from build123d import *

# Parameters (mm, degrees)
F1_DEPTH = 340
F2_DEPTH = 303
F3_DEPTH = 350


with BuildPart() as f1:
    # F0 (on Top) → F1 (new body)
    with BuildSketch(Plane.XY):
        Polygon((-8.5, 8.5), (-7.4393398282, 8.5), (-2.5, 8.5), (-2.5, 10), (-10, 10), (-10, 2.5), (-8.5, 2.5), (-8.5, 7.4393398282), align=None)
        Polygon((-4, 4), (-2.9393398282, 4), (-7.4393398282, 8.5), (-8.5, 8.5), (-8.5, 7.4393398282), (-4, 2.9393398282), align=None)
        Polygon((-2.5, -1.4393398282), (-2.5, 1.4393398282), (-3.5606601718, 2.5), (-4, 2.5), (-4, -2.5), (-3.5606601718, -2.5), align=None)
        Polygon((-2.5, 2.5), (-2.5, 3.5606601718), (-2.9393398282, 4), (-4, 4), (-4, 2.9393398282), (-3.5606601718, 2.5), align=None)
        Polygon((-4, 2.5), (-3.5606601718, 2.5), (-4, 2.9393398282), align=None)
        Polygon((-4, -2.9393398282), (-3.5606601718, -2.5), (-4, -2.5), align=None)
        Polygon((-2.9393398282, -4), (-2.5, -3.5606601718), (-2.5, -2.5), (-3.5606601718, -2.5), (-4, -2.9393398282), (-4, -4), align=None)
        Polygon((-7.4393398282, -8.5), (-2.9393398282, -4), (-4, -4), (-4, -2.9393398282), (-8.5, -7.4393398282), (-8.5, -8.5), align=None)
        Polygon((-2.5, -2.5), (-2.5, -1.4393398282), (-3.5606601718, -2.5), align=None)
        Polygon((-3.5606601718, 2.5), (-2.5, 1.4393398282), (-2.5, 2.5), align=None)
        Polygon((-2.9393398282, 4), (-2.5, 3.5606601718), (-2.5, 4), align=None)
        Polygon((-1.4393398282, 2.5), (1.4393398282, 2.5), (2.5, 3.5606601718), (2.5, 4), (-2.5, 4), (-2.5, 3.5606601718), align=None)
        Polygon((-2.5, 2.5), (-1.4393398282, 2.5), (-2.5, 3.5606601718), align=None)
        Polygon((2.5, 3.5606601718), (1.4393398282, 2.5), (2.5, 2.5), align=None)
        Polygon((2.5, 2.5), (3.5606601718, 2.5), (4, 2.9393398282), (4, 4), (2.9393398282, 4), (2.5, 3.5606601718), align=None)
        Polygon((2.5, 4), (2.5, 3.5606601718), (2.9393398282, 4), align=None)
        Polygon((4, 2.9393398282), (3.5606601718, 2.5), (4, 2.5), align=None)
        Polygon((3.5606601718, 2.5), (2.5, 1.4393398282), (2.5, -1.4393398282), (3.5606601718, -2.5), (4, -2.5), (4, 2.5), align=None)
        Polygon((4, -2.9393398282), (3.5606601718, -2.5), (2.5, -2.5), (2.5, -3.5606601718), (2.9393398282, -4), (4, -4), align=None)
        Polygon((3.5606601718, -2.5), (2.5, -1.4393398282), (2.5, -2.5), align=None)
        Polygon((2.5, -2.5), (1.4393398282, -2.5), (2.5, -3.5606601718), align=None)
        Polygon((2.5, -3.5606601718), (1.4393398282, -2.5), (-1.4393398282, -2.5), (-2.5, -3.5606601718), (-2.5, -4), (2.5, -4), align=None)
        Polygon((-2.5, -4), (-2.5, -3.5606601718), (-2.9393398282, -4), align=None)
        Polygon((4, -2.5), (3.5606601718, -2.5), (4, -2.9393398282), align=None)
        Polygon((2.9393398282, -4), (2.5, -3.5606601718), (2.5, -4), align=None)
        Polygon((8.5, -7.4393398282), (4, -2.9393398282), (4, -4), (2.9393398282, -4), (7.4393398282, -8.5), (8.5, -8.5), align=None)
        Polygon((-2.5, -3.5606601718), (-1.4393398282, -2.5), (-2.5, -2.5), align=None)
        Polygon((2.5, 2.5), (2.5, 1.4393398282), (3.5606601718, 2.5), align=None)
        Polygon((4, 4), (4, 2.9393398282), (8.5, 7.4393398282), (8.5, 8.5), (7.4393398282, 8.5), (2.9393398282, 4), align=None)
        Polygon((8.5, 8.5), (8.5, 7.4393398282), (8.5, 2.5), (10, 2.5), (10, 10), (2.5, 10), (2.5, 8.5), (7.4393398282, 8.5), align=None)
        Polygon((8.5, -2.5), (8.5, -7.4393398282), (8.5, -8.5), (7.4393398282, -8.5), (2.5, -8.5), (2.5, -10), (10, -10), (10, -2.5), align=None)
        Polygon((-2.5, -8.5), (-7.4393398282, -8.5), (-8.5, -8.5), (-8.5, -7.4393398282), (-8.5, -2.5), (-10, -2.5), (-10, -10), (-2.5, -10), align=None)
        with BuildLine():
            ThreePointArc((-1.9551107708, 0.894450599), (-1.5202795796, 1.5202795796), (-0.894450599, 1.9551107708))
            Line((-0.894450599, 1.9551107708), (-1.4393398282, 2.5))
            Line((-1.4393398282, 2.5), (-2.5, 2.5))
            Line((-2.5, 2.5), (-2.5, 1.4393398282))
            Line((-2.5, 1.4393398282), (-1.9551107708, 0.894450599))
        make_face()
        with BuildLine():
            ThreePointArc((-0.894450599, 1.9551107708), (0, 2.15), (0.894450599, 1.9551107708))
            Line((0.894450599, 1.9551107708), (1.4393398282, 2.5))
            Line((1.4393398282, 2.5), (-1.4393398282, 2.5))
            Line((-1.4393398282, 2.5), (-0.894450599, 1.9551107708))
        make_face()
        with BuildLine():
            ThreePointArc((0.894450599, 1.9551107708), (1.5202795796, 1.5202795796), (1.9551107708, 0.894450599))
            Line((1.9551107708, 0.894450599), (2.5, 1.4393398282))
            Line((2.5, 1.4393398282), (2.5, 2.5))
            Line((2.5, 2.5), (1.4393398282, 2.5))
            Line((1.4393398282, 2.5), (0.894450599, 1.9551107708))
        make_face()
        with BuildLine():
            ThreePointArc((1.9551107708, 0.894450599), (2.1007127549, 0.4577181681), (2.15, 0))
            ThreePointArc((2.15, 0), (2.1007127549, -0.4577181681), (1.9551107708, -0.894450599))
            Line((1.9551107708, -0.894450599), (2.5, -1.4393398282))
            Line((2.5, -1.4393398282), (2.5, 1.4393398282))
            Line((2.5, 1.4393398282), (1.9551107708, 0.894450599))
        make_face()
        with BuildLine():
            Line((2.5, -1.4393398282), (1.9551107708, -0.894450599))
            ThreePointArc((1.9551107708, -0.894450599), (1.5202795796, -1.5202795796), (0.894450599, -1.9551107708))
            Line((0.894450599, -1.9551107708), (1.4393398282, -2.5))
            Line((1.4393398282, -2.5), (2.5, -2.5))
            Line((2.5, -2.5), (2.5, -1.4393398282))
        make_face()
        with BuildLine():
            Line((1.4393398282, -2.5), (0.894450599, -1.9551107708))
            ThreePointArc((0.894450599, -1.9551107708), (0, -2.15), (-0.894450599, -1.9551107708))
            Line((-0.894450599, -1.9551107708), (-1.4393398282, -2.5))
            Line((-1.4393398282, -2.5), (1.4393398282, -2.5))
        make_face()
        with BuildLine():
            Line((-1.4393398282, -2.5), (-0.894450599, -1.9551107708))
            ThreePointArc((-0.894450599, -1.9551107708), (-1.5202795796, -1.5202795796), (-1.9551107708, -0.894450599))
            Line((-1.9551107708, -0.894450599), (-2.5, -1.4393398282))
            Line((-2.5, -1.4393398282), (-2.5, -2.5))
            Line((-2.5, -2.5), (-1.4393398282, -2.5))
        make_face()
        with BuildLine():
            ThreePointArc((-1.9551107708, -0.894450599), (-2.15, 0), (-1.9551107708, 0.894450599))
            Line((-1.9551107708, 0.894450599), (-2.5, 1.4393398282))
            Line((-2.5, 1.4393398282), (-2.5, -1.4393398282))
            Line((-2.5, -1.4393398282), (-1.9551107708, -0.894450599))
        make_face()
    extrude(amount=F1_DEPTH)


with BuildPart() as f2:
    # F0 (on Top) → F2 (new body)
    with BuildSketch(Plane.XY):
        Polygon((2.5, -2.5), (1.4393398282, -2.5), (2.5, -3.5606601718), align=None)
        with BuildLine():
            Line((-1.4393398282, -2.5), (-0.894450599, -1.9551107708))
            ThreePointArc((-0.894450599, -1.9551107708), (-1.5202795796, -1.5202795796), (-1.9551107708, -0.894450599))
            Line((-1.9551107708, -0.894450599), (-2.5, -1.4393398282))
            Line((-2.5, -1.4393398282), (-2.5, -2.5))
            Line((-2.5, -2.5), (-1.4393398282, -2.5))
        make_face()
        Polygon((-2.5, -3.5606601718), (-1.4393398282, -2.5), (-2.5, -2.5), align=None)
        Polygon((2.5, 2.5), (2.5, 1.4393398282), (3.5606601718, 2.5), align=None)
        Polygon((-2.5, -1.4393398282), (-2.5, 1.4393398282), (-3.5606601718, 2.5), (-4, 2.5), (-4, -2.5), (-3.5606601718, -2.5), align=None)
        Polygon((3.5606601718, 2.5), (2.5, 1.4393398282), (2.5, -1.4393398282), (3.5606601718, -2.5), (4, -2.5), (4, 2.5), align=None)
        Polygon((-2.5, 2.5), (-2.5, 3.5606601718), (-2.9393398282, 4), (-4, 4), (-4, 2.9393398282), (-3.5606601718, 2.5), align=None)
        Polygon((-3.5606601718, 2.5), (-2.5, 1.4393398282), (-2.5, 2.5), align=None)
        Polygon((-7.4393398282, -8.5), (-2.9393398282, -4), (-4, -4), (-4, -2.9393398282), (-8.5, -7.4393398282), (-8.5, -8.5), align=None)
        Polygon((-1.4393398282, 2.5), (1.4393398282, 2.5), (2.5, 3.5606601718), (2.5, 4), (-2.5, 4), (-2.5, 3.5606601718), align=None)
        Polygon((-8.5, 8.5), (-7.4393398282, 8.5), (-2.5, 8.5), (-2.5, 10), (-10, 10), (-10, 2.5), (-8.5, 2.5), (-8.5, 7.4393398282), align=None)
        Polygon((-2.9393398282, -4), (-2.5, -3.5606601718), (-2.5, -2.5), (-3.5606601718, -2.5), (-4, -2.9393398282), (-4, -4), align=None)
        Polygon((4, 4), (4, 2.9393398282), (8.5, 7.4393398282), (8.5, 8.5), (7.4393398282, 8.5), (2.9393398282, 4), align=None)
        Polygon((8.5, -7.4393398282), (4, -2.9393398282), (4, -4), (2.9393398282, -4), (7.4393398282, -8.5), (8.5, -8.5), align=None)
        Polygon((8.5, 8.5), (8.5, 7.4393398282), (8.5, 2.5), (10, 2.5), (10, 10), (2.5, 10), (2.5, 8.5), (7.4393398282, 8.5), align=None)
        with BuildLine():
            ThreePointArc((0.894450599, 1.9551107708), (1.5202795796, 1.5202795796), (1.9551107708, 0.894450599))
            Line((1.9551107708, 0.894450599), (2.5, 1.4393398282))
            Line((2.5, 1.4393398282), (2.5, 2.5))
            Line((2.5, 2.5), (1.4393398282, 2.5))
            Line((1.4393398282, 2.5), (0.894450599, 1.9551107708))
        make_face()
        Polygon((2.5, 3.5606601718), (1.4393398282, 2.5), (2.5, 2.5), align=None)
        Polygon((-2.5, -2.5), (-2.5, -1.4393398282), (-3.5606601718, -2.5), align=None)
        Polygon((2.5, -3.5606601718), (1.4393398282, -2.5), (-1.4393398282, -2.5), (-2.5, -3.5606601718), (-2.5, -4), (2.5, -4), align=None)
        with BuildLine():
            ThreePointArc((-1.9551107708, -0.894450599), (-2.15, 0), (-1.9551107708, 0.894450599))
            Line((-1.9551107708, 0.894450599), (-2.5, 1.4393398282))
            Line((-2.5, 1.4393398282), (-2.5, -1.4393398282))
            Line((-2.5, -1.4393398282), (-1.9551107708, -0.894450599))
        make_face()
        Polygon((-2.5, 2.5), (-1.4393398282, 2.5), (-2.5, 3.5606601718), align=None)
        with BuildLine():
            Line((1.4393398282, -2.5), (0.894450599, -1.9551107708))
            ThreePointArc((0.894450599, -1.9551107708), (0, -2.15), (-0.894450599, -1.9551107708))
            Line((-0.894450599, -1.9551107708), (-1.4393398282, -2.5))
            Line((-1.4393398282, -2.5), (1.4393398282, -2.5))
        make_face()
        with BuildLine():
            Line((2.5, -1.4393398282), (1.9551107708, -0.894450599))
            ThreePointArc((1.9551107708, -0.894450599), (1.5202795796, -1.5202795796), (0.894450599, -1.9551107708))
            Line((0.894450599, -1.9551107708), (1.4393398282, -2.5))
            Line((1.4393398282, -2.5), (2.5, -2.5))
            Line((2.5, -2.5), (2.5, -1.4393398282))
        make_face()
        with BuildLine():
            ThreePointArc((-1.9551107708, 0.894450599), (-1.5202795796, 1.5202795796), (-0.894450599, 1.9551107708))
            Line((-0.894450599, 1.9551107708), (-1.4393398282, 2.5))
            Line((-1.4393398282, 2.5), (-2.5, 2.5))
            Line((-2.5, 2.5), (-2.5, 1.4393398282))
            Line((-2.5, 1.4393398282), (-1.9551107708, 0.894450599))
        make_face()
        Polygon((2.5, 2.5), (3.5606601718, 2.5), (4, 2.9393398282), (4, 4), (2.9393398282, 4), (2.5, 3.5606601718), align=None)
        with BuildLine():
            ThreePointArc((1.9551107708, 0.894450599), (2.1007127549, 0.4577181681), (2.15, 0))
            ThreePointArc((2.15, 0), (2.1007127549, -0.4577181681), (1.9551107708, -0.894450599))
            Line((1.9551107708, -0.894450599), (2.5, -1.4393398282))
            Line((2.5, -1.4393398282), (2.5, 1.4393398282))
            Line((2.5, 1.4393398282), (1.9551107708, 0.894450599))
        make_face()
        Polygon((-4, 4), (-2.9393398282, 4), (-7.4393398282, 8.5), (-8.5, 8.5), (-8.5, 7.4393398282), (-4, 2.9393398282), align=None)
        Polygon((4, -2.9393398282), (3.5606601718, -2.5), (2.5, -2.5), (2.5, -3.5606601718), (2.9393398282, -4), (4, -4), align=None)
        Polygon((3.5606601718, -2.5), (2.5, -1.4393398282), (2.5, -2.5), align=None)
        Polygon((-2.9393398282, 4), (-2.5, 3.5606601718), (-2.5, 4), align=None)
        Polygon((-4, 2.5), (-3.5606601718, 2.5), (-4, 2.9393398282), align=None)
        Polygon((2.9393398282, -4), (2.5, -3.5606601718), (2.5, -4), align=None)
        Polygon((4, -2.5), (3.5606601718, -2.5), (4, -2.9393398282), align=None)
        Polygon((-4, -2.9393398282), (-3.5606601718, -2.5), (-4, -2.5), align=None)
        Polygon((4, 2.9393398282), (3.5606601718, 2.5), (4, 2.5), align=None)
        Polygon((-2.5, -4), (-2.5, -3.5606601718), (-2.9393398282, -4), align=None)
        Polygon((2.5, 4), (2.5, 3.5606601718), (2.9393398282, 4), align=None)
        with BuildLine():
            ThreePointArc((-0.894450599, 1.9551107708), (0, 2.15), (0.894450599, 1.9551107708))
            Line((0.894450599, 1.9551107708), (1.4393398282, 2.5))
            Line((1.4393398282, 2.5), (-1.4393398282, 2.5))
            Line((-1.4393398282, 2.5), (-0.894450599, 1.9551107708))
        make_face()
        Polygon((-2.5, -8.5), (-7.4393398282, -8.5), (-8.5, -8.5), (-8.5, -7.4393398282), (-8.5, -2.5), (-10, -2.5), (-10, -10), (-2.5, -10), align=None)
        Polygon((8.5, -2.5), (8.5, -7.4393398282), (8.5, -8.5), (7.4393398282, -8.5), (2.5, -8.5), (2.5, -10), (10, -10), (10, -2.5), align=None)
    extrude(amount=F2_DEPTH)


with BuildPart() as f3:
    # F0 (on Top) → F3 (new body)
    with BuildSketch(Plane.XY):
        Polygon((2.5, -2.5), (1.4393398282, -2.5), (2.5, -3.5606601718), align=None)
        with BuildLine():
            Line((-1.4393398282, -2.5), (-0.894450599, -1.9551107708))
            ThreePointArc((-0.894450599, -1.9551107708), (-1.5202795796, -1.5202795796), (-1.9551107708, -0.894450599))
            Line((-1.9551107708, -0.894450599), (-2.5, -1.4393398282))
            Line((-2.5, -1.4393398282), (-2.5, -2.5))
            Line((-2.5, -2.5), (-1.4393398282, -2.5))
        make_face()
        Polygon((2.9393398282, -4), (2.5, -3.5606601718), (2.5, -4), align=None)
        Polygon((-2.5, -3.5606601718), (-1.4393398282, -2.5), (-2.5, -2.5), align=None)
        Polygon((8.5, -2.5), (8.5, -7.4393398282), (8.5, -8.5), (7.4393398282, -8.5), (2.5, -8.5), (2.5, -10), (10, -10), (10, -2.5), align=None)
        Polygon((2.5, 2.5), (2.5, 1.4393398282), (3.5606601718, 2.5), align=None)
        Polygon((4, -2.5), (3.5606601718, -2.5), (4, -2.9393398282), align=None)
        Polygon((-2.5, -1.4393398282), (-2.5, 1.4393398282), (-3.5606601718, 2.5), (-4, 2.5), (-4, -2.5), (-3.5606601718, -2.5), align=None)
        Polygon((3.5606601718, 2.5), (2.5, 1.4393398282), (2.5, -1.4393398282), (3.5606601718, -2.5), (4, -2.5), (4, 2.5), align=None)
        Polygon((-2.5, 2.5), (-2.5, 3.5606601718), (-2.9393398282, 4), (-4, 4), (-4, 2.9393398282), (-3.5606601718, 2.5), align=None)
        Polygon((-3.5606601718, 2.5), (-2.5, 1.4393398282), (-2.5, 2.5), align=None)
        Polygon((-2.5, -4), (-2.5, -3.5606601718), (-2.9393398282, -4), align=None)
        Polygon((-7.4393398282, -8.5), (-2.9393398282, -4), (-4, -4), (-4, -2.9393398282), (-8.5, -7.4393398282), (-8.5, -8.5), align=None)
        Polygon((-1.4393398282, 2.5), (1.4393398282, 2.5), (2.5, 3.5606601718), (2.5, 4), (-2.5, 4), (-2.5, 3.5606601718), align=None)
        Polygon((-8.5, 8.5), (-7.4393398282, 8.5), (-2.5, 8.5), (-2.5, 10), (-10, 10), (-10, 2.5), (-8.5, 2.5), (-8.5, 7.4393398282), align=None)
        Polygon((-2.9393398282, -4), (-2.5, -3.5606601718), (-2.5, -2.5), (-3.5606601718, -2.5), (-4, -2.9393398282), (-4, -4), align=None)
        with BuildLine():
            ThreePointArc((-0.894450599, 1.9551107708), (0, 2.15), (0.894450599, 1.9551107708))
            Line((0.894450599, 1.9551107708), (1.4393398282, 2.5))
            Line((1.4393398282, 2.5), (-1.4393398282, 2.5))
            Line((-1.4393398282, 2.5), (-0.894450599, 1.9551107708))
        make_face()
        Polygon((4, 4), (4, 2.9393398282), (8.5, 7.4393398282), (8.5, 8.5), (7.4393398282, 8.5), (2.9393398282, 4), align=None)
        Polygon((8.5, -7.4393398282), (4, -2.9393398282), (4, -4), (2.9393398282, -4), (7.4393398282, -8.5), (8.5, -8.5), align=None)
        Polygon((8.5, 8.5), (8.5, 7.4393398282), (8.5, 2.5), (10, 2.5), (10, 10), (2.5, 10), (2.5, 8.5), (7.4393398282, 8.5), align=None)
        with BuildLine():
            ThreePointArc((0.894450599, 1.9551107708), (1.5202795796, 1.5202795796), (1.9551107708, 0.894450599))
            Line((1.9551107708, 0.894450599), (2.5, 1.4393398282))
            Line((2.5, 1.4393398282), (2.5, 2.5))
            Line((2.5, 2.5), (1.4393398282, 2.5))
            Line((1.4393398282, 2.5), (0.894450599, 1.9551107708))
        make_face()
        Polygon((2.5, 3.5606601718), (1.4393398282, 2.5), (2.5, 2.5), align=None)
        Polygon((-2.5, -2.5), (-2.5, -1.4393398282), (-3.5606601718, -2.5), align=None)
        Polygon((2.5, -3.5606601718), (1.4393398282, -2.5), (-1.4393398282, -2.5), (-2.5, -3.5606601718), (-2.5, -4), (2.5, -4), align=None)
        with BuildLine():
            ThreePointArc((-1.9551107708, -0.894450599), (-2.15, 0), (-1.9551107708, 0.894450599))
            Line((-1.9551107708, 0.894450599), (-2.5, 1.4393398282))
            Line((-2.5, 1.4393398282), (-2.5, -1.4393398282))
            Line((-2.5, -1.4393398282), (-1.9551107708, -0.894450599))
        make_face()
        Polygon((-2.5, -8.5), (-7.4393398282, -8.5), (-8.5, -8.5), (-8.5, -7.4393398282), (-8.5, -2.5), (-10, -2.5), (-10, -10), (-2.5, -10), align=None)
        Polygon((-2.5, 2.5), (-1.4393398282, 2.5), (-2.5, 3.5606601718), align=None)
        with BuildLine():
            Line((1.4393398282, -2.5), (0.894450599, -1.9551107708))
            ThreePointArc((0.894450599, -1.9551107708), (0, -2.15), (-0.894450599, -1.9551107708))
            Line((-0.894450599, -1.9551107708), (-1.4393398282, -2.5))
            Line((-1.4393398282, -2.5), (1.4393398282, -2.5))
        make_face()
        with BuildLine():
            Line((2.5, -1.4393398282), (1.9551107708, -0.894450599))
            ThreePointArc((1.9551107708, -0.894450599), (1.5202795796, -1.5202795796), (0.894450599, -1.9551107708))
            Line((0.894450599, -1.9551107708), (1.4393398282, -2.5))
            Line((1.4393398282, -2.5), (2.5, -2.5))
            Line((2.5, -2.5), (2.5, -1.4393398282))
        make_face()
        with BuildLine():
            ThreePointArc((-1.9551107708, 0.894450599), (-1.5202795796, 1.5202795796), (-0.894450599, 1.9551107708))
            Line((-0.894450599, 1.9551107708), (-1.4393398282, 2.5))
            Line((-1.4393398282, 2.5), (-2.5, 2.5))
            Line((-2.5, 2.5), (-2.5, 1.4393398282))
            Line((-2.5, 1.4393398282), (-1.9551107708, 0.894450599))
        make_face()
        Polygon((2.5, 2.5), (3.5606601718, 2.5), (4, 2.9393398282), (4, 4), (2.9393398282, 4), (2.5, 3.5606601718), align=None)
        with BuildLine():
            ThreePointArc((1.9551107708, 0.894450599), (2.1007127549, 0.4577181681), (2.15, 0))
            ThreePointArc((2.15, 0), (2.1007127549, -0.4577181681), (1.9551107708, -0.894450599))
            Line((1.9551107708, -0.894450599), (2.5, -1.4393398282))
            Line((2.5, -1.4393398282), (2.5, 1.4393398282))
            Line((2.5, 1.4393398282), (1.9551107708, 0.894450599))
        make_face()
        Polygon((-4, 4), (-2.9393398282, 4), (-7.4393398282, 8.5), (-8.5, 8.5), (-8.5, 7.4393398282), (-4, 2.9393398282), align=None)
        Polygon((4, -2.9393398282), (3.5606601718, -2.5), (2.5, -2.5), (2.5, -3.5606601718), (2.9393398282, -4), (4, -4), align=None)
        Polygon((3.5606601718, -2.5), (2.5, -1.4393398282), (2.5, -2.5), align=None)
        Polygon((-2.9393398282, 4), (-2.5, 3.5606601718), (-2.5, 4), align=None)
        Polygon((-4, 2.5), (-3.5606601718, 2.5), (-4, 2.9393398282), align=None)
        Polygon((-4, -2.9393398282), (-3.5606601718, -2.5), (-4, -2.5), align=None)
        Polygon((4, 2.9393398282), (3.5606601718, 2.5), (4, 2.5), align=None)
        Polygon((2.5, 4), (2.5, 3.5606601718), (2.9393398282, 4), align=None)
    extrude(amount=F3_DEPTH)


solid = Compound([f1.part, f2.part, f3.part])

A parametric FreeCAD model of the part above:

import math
import FreeCAD as App
import Part
import Sketcher
from FreeCAD import Vector
Q = App.Units.Quantity


def add_polygon(sketch, points):
    """Adds a closed chain of lines whose ends are joined by coincident constraints."""
    first, n = sketch.GeometryCount, len(points)
    for a, b in zip(points, points[1:] + points[:1]):
        sketch.addGeometry(Part.LineSegment(App.Vector(*a, 0), App.Vector(*b, 0)), False)
    for i in range(n):
        sketch.addConstraint(Sketcher.Constraint("Coincident", first + i, 2, first + (i + 1) % n, 1))

doc = App.newDocument("Part")
body = doc.addObject("PartDesign::Body", "Body")

# Sketch on XY plane
sketch1 = body.newObject("Sketcher::SketchObject", "Sketch")
sketch1.AttachmentSupport = (doc.getObject("XY_Plane"), [""])
sketch1.MapMode = "FlatFace"
add_polygon(sketch1, [(-7.4, -8.5), (-2.9, -4), (2.9, -4), (7.4, -8.5), (2.5, -8.5), (2.5, -10), (10, -10), (10, -2.5), (8.5, -2.5), (8.5, -7.4), (4, -2.9), (4, 2.9), (8.5, 7.4), (8.5, 2.5), (10, 2.5), (10, 10), (2.5, 10), (2.5, 8.5), (7.4, 8.5), (2.9, 4), (-2.9, 4), (-7.4, 8.5), (-2.5, 8.5), (-2.5, 10), (-10, 10), (-10, 2.5), (-8.5, 2.5), (-8.5, 7.4), (-4, 2.9), (-4, -2.9), (-8.5, -7.4), (-8.5, -2.5), (-10, -2.5), (-10, -10), (-2.5, -10), (-2.5, -8.5)])  # lines 0-35
sketch1.addGeometry(Part.ArcOfCircle(Part.Circle(Vector(0, 0, 0), Vector(0, 0, 1), 2.1), math.radians(115), math.radians(155)), False)  # 36
sketch1.addGeometry(Part.ArcOfCircle(Part.Circle(Vector(0, 0, 0), Vector(0, 0, 1), 2.1), math.radians(65), math.radians(115)), False)  # 37
sketch1.addGeometry(Part.ArcOfCircle(Part.Circle(Vector(0, 0, 0), Vector(0, 0, 1), 2.1), math.radians(25), math.radians(65)), False)  # 38
sketch1.addGeometry(Part.ArcOfCircle(Part.Circle(Vector(0, 0, 0), Vector(0, 0, 1), 2.2), math.radians(0), math.radians(25)), False)  # 39
sketch1.addGeometry(Part.ArcOfCircle(Part.Circle(Vector(0, 0, 0), Vector(0, 0, 1), 2.2), math.radians(-25), math.radians(0)), False)  # 40
sketch1.addGeometry(Part.ArcOfCircle(Part.Circle(Vector(0, 0, 0), Vector(0, 0, 1), 2.1), math.radians(-65), math.radians(-25)), False)  # 41
sketch1.addGeometry(Part.ArcOfCircle(Part.Circle(Vector(0, 0, 0), Vector(0, 0, 1), 2.1), math.radians(-115), math.radians(-65)), False)  # 42
sketch1.addGeometry(Part.ArcOfCircle(Part.Circle(Vector(0, 0, 0), Vector(0, 0, 1), 2.1), math.radians(-155), math.radians(-115)), False)  # 43
sketch1.addGeometry(Part.ArcOfCircle(Part.Circle(Vector(0, 0, 0), Vector(0, 0, 1), 2.1), math.radians(155), math.radians(205)), False)  # 44
sketch1.addConstraint([
    Sketcher.Constraint("Tangent", 36, 1, 37, 2),
    Sketcher.Constraint("Tangent", 37, 1, 38, 2),
    Sketcher.Constraint("Tangent", 38, 1, 39, 2),
    Sketcher.Constraint("Tangent", 39, 1, 40, 2),
    Sketcher.Constraint("Tangent", 40, 1, 41, 2),
    Sketcher.Constraint("Tangent", 41, 1, 42, 2),
    Sketcher.Constraint("Tangent", 42, 1, 43, 2),
    Sketcher.Constraint("Tangent", 43, 1, 44, 2),
    Sketcher.Constraint("Tangent", 44, 1, 36, 2),
    Sketcher.Constraint("Horizontal", 1),
    Sketcher.Constraint("Horizontal", 3),
    Sketcher.Constraint("Vertical", 4),
    Sketcher.Constraint("Horizontal", 5),
    Sketcher.Constraint("Vertical", 6),
    Sketcher.Constraint("Horizontal", 7),
    Sketcher.Constraint("Vertical", 8),
    Sketcher.Constraint("Vertical", 10),
    Sketcher.Constraint("Vertical", 12),
    Sketcher.Constraint("Horizontal", 13),
    Sketcher.Constraint("Vertical", 14),
    Sketcher.Constraint("Horizontal", 15),
    Sketcher.Constraint("Vertical", 16),
    Sketcher.Constraint("Horizontal", 17),
    Sketcher.Constraint("Horizontal", 19),
    Sketcher.Constraint("Horizontal", 21),
    Sketcher.Constraint("Vertical", 22),
    Sketcher.Constraint("Horizontal", 23),
    Sketcher.Constraint("Vertical", 24),
    Sketcher.Constraint("Horizontal", 25),
    Sketcher.Constraint("Vertical", 26),
    Sketcher.Constraint("Vertical", 28),
    Sketcher.Constraint("Vertical", 30),
    Sketcher.Constraint("Horizontal", 31),
    Sketcher.Constraint("Vertical", 32),
    Sketcher.Constraint("Horizontal", 33),
    Sketcher.Constraint("Vertical", 34),
    Sketcher.Constraint("Horizontal", 35),
    Sketcher.Constraint("Coincident", 36, 3, -1, 1),
    Sketcher.Constraint("Coincident", 38, 3, -1, 1),
    Sketcher.Constraint("Coincident", 40, 3, -1, 1),
    Sketcher.Constraint("Coincident", 42, 3, -1, 1),
    Sketcher.Constraint("Symmetric", 0, 2, 18, 2, -1, 1),
    Sketcher.Constraint("Symmetric", 2, 2, 20, 2, -1, 1),
    Sketcher.Constraint("Symmetric", 4, 2, 22, 2, -1, 1),
    Sketcher.Constraint("Symmetric", 6, 2, 24, 2, -1, 1),
    Sketcher.Constraint("Symmetric", 8, 2, 26, 2, -1, 1),
    Sketcher.Constraint("Symmetric", 9, 2, 27, 2, -1, 1),
    Sketcher.Constraint("Symmetric", 11, 2, 29, 2, -1, 1),
    Sketcher.Constraint("Symmetric", 13, 2, 31, 2, -1, 1),
    Sketcher.Constraint("Symmetric", 15, 2, 33, 2, -1, 1),
    Sketcher.Constraint("Symmetric", 17, 2, 35, 2, -1, 1),
    Sketcher.Constraint("Symmetric", 17, 2, 20, 2, -2),
    Sketcher.Constraint("Symmetric", 15, 2, 22, 2, -2),
    Sketcher.Constraint("Symmetric", 13, 2, 24, 2, -2),
    Sketcher.Constraint("Symmetric", 11, 2, 26, 2, -2),
    Sketcher.Constraint("PointOnObject", 39, 1, -1),
    Sketcher.Constraint("Perpendicular", 0, 2),
    Sketcher.Constraint("Parallel", 2, 9),
    Sketcher.Constraint("Perpendicular", 9, 11),
    Sketcher.Constraint("Perpendicular", 18, 20),
    Sketcher.Constraint("Perpendicular", 27, 29),
    Sketcher.Constraint("Horizontal", 10, 2, 27, 2),
    Sketcher.Constraint("Horizontal", 36, 1, 37, 1),
    Sketcher.Constraint("Horizontal", 41, 1, 42, 1),
    Sketcher.Constraint("Horizontal", 40, 1, 43, 1),
    Sketcher.Constraint("Horizontal", 38, 1, 44, 1),
    Sketcher.Constraint("Vertical", 38, 1, 40, 1),
    Sketcher.Constraint("Vertical", 37, 1, 41, 1),
    Sketcher.Constraint("Equal", 31, 4),
    Sketcher.Constraint("Equal", 33, 6),
    Sketcher.Constraint("Equal", 35, 8),
    Sketcher.Constraint("Equal", 19, 10),
    Sketcher.Constraint("Equal", 2, 9),
    Sketcher.Constraint("Radius", 36, Q("2.15 mm")),
    Sketcher.Constraint("DistanceX", 5, 1, 5, 2, Q("7.5 mm")),
    Sketcher.Constraint("DistanceX", 7, 2, 7, 1, Q("1.5 mm")),
    Sketcher.Constraint("DistanceY", 0, 2, -1, 1, Q("4 mm")),
    Sketcher.Constraint("DistanceY", 4, 2, -1, 1, Q("10 mm")),
    Sketcher.Constraint("DistanceX", 1, 1, 1, 2, Q("5.87868 mm")),
    Sketcher.Constraint("DistanceX", 36, 1, 37, 1, Q("1.788901 mm")),
    Sketcher.Constraint("DistanceY", 40, 1, 38, 1, Q("1.788901 mm")),
])
pad1 = body.newObject("PartDesign::Pad", "Pad")
pad1.Profile = sketch1
pad1.Length = 340
body2 = doc.addObject("PartDesign::Body", "Body001")

# Sketch on XY plane
sketch2 = body2.newObject("Sketcher::SketchObject", "Sketch001")
sketch2.AttachmentSupport = (doc.getObject("XY_Plane001"), [""])
sketch2.MapMode = "FlatFace"
add_polygon(sketch2, [(8.5, -7.4), (4, -2.9), (4, 2.9), (8.5, 7.4), (8.5, 2.5), (10, 2.5), (10, 10), (2.5, 10), (2.5, 8.5), (7.4, 8.5), (2.9, 4), (-2.9, 4), (-7.4, 8.5), (-2.5, 8.5), (-2.5, 10), (-10, 10), (-10, 2.5), (-8.5, 2.5), (-8.5, 7.4), (-4, 2.9), (-4, -2.9), (-8.5, -7.4), (-8.5, -2.5), (-10, -2.5), (-10, -10), (-2.5, -10), (-2.5, -8.5), (-7.4, -8.5), (-2.9, -4), (2.9, -4), (7.4, -8.5), (2.5, -8.5), (2.5, -10), (10, -10), (10, -2.5), (8.5, -2.5)])  # lines 0-35
sketch2.addGeometry(Part.ArcOfCircle(Part.Circle(Vector(0, 0, 0), Vector(0, 0, 1), 2.1), math.radians(25), math.radians(65)), False)  # 36
sketch2.addGeometry(Part.ArcOfCircle(Part.Circle(Vector(0, 0, 0), Vector(0, 0, 1), 2.2), math.radians(0), math.radians(25)), False)  # 37
sketch2.addGeometry(Part.ArcOfCircle(Part.Circle(Vector(0, 0, 0), Vector(0, 0, 1), 2.2), math.radians(-25), math.radians(0)), False)  # 38
sketch2.addGeometry(Part.ArcOfCircle(Part.Circle(Vector(0, 0, 0), Vector(0, 0, 1), 2.1), math.radians(-65), math.radians(-25)), False)  # 39
sketch2.addGeometry(Part.ArcOfCircle(Part.Circle(Vector(0, 0, 0), Vector(0, 0, 1), 2.1), math.radians(-115), math.radians(-65)), False)  # 40
sketch2.addGeometry(Part.ArcOfCircle(Part.Circle(Vector(0, 0, 0), Vector(0, 0, 1), 2.1), math.radians(-155), math.radians(-115)), False)  # 41
sketch2.addGeometry(Part.ArcOfCircle(Part.Circle(Vector(0, 0, 0), Vector(0, 0, 1), 2.1), math.radians(155), math.radians(205)), False)  # 42
sketch2.addGeometry(Part.ArcOfCircle(Part.Circle(Vector(0, 0, 0), Vector(0, 0, 1), 2.1), math.radians(115), math.radians(155)), False)  # 43
sketch2.addGeometry(Part.ArcOfCircle(Part.Circle(Vector(0, 0, 0), Vector(0, 0, 1), 2.1), math.radians(65), math.radians(115)), False)  # 44
sketch2.addConstraint([
    Sketcher.Constraint("Tangent", 36, 1, 37, 2),
    Sketcher.Constraint("Tangent", 37, 1, 38, 2),
    Sketcher.Constraint("Tangent", 38, 1, 39, 2),
    Sketcher.Constraint("Tangent", 39, 1, 40, 2),
    Sketcher.Constraint("Tangent", 40, 1, 41, 2),
    Sketcher.Constraint("Tangent", 41, 1, 42, 2),
    Sketcher.Constraint("Tangent", 42, 1, 43, 2),
    Sketcher.Constraint("Tangent", 43, 1, 44, 2),
    Sketcher.Constraint("Tangent", 44, 1, 36, 2),
    Sketcher.Constraint("Vertical", 1),
    Sketcher.Constraint("Vertical", 3),
    Sketcher.Constraint("Horizontal", 4),
    Sketcher.Constraint("Vertical", 5),
    Sketcher.Constraint("Horizontal", 6),
    Sketcher.Constraint("Vertical", 7),
    Sketcher.Constraint("Horizontal", 8),
    Sketcher.Constraint("Horizontal", 10),
    Sketcher.Constraint("Horizontal", 12),
    Sketcher.Constraint("Vertical", 13),
    Sketcher.Constraint("Horizontal", 14),
    Sketcher.Constraint("Vertical", 15),
    Sketcher.Constraint("Horizontal", 16),
    Sketcher.Constraint("Vertical", 17),
    Sketcher.Constraint("Vertical", 19),
    Sketcher.Constraint("Vertical", 21),
    Sketcher.Constraint("Horizontal", 22),
    Sketcher.Constraint("Vertical", 23),
    Sketcher.Constraint("Horizontal", 24),
    Sketcher.Constraint("Vertical", 25),
    Sketcher.Constraint("Horizontal", 26),
    Sketcher.Constraint("Horizontal", 28),
    Sketcher.Constraint("Horizontal", 30),
    Sketcher.Constraint("Vertical", 31),
    Sketcher.Constraint("Horizontal", 32),
    Sketcher.Constraint("Vertical", 33),
    Sketcher.Constraint("Horizontal", 34),
    Sketcher.Constraint("Vertical", 35),
    Sketcher.Constraint("Coincident", 36, 3, -1, 1),
    Sketcher.Constraint("Coincident", 38, 3, -1, 1),
    Sketcher.Constraint("Coincident", 40, 3, -1, 1),
    Sketcher.Constraint("Coincident", 42, 3, -1, 1),
    Sketcher.Constraint("Symmetric", 0, 2, 18, 2, -1, 1),
    Sketcher.Constraint("Symmetric", 2, 2, 20, 2, -1, 1),
    Sketcher.Constraint("Symmetric", 4, 2, 22, 2, -1, 1),
    Sketcher.Constraint("Symmetric", 6, 2, 24, 2, -1, 1),
    Sketcher.Constraint("Symmetric", 8, 2, 26, 2, -1, 1),
    Sketcher.Constraint("Symmetric", 9, 2, 27, 2, -1, 1),
    Sketcher.Constraint("Symmetric", 11, 2, 29, 2, -1, 1),
    Sketcher.Constraint("Symmetric", 13, 2, 31, 2, -1, 1),
    Sketcher.Constraint("Symmetric", 15, 2, 33, 2, -1, 1),
    Sketcher.Constraint("Symmetric", 17, 2, 35, 2, -1, 1),
    Sketcher.Constraint("Symmetric", 8, 2, 11, 2, -2),
    Sketcher.Constraint("Symmetric", 6, 2, 13, 2, -2),
    Sketcher.Constraint("Symmetric", 4, 2, 15, 2, -2),
    Sketcher.Constraint("Symmetric", 2, 2, 17, 2, -2),
    Sketcher.Constraint("PointOnObject", 37, 1, -1),
    Sketcher.Constraint("Perpendicular", 0, 2),
    Sketcher.Constraint("Parallel", 2, 9),
    Sketcher.Constraint("Perpendicular", 9, 11),
    Sketcher.Constraint("Perpendicular", 18, 20),
    Sketcher.Constraint("Perpendicular", 27, 29),
    Sketcher.Constraint("Horizontal", 1, 2, 18, 2),
    Sketcher.Constraint("Horizontal", 39, 1, 40, 1),
    Sketcher.Constraint("Horizontal", 38, 1, 41, 1),
    Sketcher.Constraint("Horizontal", 36, 1, 42, 1),
    Sketcher.Constraint("Horizontal", 43, 1, 44, 1),
    Sketcher.Constraint("Vertical", 36, 1, 38, 1),
    Sketcher.Constraint("Vertical", 40, 1, 43, 1),
    Sketcher.Constraint("Equal", 28, 1),
    Sketcher.Constraint("Equal", 30, 3),
    Sketcher.Constraint("Equal", 32, 5),
    Sketcher.Constraint("Equal", 34, 7),
    Sketcher.Constraint("Equal", 2, 9),
    Sketcher.Constraint("Radius", 36, Q("2.15 mm")),
    Sketcher.Constraint("DistanceX", 4, 1, 4, 2, Q("1.5 mm")),
    Sketcher.Constraint("DistanceX", 6, 2, 6, 1, Q("7.5 mm")),
    Sketcher.Constraint("DistanceX", -1, 1, 0, 2, Q("4 mm")),
    Sketcher.Constraint("DistanceX", -1, 1, 4, 2, Q("10 mm")),
    Sketcher.Constraint("DistanceX", 8, 1, 8, 2, Q("4.93934 mm")),
    Sketcher.Constraint("DistanceY", 38, 1, 36, 1, Q("1.788901 mm")),
    Sketcher.Constraint("DistanceX", 40, 1, 39, 1, Q("1.788901 mm")),
])
pad2 = body2.newObject("PartDesign::Pad", "Pad001")
pad2.Profile = sketch2
pad2.Length = 303
body3 = doc.addObject("PartDesign::Body", "Body002")

# Sketch on XY plane
sketch3 = body3.newObject("Sketcher::SketchObject", "Sketch002")
sketch3.AttachmentSupport = (doc.getObject("XY_Plane002"), [""])
sketch3.MapMode = "FlatFace"
add_polygon(sketch3, [(4, -2.9), (4, 2.9), (8.5, 7.4), (8.5, 2.5), (10, 2.5), (10, 10), (2.5, 10), (2.5, 8.5), (7.4, 8.5), (2.9, 4), (-2.9, 4), (-7.4, 8.5), (-2.5, 8.5), (-2.5, 10), (-10, 10), (-10, 2.5), (-8.5, 2.5), (-8.5, 7.4), (-4, 2.9), (-4, -2.9), (-8.5, -7.4), (-8.5, -2.5), (-10, -2.5), (-10, -10), (-2.5, -10), (-2.5, -8.5), (-7.4, -8.5), (-2.9, -4), (2.9, -4), (7.4, -8.5), (2.5, -8.5), (2.5, -10), (10, -10), (10, -2.5), (8.5, -2.5), (8.5, -7.4)])  # lines 0-35
sketch3.addGeometry(Part.ArcOfCircle(Part.Circle(Vector(0, 0, 0), Vector(0, 0, 1), 2.1), math.radians(25), math.radians(65)), False)  # 36
sketch3.addGeometry(Part.ArcOfCircle(Part.Circle(Vector(0, 0, 0), Vector(0, 0, 1), 2.2), math.radians(0), math.radians(25)), False)  # 37
sketch3.addGeometry(Part.ArcOfCircle(Part.Circle(Vector(0, 0, 0), Vector(0, 0, 1), 2.2), math.radians(-25), math.radians(0)), False)  # 38
sketch3.addGeometry(Part.ArcOfCircle(Part.Circle(Vector(0, 0, 0), Vector(0, 0, 1), 2.1), math.radians(-65), math.radians(-25)), False)  # 39
sketch3.addGeometry(Part.ArcOfCircle(Part.Circle(Vector(0, 0, 0), Vector(0, 0, 1), 2.1), math.radians(-115), math.radians(-65)), False)  # 40
sketch3.addGeometry(Part.ArcOfCircle(Part.Circle(Vector(0, 0, 0), Vector(0, 0, 1), 2.1), math.radians(-155), math.radians(-115)), False)  # 41
sketch3.addGeometry(Part.ArcOfCircle(Part.Circle(Vector(0, 0, 0), Vector(0, 0, 1), 2.1), math.radians(155), math.radians(205)), False)  # 42
sketch3.addGeometry(Part.ArcOfCircle(Part.Circle(Vector(0, 0, 0), Vector(0, 0, 1), 2.1), math.radians(115), math.radians(155)), False)  # 43
sketch3.addGeometry(Part.ArcOfCircle(Part.Circle(Vector(0, 0, 0), Vector(0, 0, 1), 2.1), math.radians(65), math.radians(115)), False)  # 44
sketch3.addConstraint([
    Sketcher.Constraint("Tangent", 36, 1, 37, 2),
    Sketcher.Constraint("Tangent", 37, 1, 38, 2),
    Sketcher.Constraint("Tangent", 38, 1, 39, 2),
    Sketcher.Constraint("Tangent", 39, 1, 40, 2),
    Sketcher.Constraint("Tangent", 40, 1, 41, 2),
    Sketcher.Constraint("Tangent", 41, 1, 42, 2),
    Sketcher.Constraint("Tangent", 42, 1, 43, 2),
    Sketcher.Constraint("Tangent", 43, 1, 44, 2),
    Sketcher.Constraint("Tangent", 44, 1, 36, 2),
    Sketcher.Constraint("Vertical", 0),
    Sketcher.Constraint("Vertical", 2),
    Sketcher.Constraint("Horizontal", 3),
    Sketcher.Constraint("Vertical", 4),
    Sketcher.Constraint("Horizontal", 5),
    Sketcher.Constraint("Vertical", 6),
    Sketcher.Constraint("Horizontal", 7),
    Sketcher.Constraint("Horizontal", 9),
    Sketcher.Constraint("Horizontal", 11),
    Sketcher.Constraint("Vertical", 12),
    Sketcher.Constraint("Horizontal", 13),
    Sketcher.Constraint("Vertical", 14),
    Sketcher.Constraint("Horizontal", 15),
    Sketcher.Constraint("Vertical", 16),
    Sketcher.Constraint("Vertical", 18),
    Sketcher.Constraint("Vertical", 20),
    Sketcher.Constraint("Horizontal", 21),
    Sketcher.Constraint("Vertical", 22),
    Sketcher.Constraint("Horizontal", 23),
    Sketcher.Constraint("Vertical", 24),
    Sketcher.Constraint("Horizontal", 25),
    Sketcher.Constraint("Horizontal", 27),
    Sketcher.Constraint("Horizontal", 29),
    Sketcher.Constraint("Vertical", 30),
    Sketcher.Constraint("Horizontal", 31),
    Sketcher.Constraint("Vertical", 32),
    Sketcher.Constraint("Horizontal", 33),
    Sketcher.Constraint("Vertical", 34),
    Sketcher.Constraint("Coincident", 36, 3, -1, 1),
    Sketcher.Constraint("Coincident", 38, 3, -1, 1),
    Sketcher.Constraint("Coincident", 40, 3, -1, 1),
    Sketcher.Constraint("Coincident", 42, 3, -1, 1),
    Sketcher.Constraint("Symmetric", 0, 2, 18, 2, -1, 1),
    Sketcher.Constraint("Symmetric", 1, 2, 19, 2, -1, 1),
    Sketcher.Constraint("Symmetric", 3, 2, 21, 2, -1, 1),
    Sketcher.Constraint("Symmetric", 5, 2, 23, 2, -1, 1),
    Sketcher.Constraint("Symmetric", 7, 2, 25, 2, -1, 1),
    Sketcher.Constraint("Symmetric", 8, 2, 26, 2, -1, 1),
    Sketcher.Constraint("Symmetric", 10, 2, 28, 2, -1, 1),
    Sketcher.Constraint("Symmetric", 12, 2, 30, 2, -1, 1),
    Sketcher.Constraint("Symmetric", 14, 2, 32, 2, -1, 1),
    Sketcher.Constraint("Symmetric", 16, 2, 34, 2, -1, 1),
    Sketcher.Constraint("Symmetric", 7, 2, 10, 2, -2),
    Sketcher.Constraint("Symmetric", 5, 2, 12, 2, -2),
    Sketcher.Constraint("Symmetric", 3, 2, 14, 2, -2),
    Sketcher.Constraint("Symmetric", 1, 2, 16, 2, -2),
    Sketcher.Constraint("PointOnObject", 37, 1, -1),
    Sketcher.Constraint("Parallel", 1, 8),
    Sketcher.Constraint("Perpendicular", 8, 10),
    Sketcher.Constraint("Parallel", 10, 17),
    Sketcher.Constraint("Perpendicular", 26, 28),
    Sketcher.Constraint("Parallel", 28, 35),
    Sketcher.Constraint("Horizontal", 0, 2, 17, 2),
    Sketcher.Constraint("Horizontal", 39, 1, 40, 1),
    Sketcher.Constraint("Horizontal", 38, 1, 41, 1),
    Sketcher.Constraint("Horizontal", 36, 1, 42, 1),
    Sketcher.Constraint("Horizontal", 43, 1, 44, 1),
    Sketcher.Constraint("Vertical", 36, 1, 38, 1),
    Sketcher.Constraint("Vertical", 40, 1, 43, 1),
    Sketcher.Constraint("Equal", 27, 0),
    Sketcher.Constraint("Equal", 29, 2),
    Sketcher.Constraint("Equal", 31, 4),
    Sketcher.Constraint("Equal", 33, 6),
    Sketcher.Constraint("Equal", 1, 8),
    Sketcher.Constraint("Radius", 36, Q("2.15 mm")),
    Sketcher.Constraint("DistanceX", 3, 1, 3, 2, Q("1.5 mm")),
    Sketcher.Constraint("DistanceX", 5, 2, 5, 1, Q("7.5 mm")),
    Sketcher.Constraint("DistanceX", -1, 1, 0, 2, Q("4 mm")),
    Sketcher.Constraint("DistanceX", -1, 1, 3, 2, Q("10 mm")),
    Sketcher.Constraint("DistanceX", 7, 1, 7, 2, Q("4.93934 mm")),
    Sketcher.Constraint("DistanceY", 38, 1, 36, 1, Q("1.788901 mm")),
    Sketcher.Constraint("DistanceX", 40, 1, 39, 1, Q("1.788901 mm")),
])
pad3 = body3.newObject("PartDesign::Pad", "Pad002")
pad3.Profile = sketch3
pad3.Length = 350

doc.recompute()
